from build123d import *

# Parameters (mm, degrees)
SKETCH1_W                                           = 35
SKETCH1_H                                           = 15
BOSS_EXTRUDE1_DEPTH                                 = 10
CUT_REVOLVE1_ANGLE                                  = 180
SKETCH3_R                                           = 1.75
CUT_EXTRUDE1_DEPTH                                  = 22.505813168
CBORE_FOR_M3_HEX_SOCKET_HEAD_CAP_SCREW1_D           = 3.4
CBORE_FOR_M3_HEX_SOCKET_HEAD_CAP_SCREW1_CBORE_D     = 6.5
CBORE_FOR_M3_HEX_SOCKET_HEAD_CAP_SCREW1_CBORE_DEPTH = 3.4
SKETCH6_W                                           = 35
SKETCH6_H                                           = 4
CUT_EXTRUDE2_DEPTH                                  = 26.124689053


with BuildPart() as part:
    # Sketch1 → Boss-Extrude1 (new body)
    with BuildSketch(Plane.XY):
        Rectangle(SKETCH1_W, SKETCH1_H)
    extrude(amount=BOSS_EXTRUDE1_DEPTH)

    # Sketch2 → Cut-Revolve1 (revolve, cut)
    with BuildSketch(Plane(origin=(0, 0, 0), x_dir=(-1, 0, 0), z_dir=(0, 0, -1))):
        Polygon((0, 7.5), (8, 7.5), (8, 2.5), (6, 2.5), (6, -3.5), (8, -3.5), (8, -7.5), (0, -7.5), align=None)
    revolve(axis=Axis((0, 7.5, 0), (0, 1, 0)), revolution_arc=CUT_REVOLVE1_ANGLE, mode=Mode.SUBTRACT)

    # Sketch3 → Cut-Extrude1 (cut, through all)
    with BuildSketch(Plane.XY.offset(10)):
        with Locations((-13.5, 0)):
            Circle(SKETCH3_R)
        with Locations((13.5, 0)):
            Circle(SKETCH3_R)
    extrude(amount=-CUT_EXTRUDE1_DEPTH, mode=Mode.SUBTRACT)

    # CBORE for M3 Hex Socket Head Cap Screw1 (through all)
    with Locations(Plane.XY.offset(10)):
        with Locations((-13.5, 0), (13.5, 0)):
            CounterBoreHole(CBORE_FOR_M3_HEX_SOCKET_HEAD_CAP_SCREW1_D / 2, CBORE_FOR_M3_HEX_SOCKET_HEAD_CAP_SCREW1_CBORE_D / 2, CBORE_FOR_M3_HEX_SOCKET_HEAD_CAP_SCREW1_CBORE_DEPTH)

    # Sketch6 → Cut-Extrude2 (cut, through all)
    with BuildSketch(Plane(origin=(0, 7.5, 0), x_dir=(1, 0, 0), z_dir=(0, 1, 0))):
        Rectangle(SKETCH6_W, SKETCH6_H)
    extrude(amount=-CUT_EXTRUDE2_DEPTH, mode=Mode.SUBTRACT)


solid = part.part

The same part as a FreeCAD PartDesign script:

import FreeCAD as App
import Part
import Sketcher
from FreeCAD import Vector
Q = App.Units.Quantity


def add_polygon(sketch, points):
    """Adds a closed chain of lines whose ends are joined by coincident constraints."""
    first, n = sketch.GeometryCount, len(points)
    for a, b in zip(points, points[1:] + points[:1]):
        sketch.addGeometry(Part.LineSegment(App.Vector(*a, 0), App.Vector(*b, 0)), False)
    for i in range(n):
        sketch.addConstraint(Sketcher.Constraint("Coincident", first + i, 2, first + (i + 1) % n, 1))

doc = App.newDocument("Part")
params = doc.addObject("Spreadsheet::Sheet", "Params")
for row, (alias, value) in enumerate([
    ("sketch1_width", "35 mm"),
    ("sketch1_height", "15 mm"),
    ("pad1_length", "10 mm"),
    ("sketch2_width", "8 mm"),
    ("sketch2_width2", "2 mm"),
    ("sketch2_height", "15 mm"),
    ("sketch2_height2", "4 mm"),
    ("sketch2_height3", "6 mm"),
    ("groove_angle", "180 deg"),
    ("sketch3_diameter", "3.5 mm"),
    ("sketch4_diameter", "3.4 mm"),
    ("hole_diameter", "3.4 mm"),
    ("hole_cbore_diameter", "6.5 mm"),
    ("hole_cbore_depth", "3.4 mm"),
    ("sketch5_width", "35 mm"),
    ("sketch5_height", "4 mm"),
], start=1):
    params.set(f"A{row}", alias)
    params.set(f"B{row}", "=" + value)
    params.setAlias(f"B{row}", alias)

body = doc.addObject("PartDesign::Body", "Body")

sketch1 = body.newObject("Sketcher::SketchObject", "Sketch")
sketch1.AttachmentSupport = (doc.getObject("XY_Plane"), [""])
sketch1.MapMode = "FlatFace"
add_polygon(sketch1, [(-18, 8), (-18, -8), (18, -8), (18, 8)])
sketch1.addConstraint([
    Sketcher.Constraint("Vertical", 0),
    Sketcher.Constraint("Horizontal", 1),
    Sketcher.Constraint("Vertical", 2),
    Sketcher.Constraint("Horizontal", 3),
    Sketcher.Constraint("Symmetric", 0, 2, 2, 2, -1, 1),
    Sketcher.Constraint("DistanceX", 1, 1, 1, 2, Q("35 mm")),
    Sketcher.Constraint("DistanceY", 0, 2, 0, 1, Q("15 mm")),
])
sketch1.setExpression("Constraints[9]", "Params.sketch1_width")
sketch1.setExpression("Constraints[10]", "Params.sketch1_height")
pad1 = body.newObject("PartDesign::Pad", "Pad")
pad1.Profile = sketch1
pad1.setExpression("Length", "Params.pad1_length")

sketch2 = body.newObject("Sketcher::SketchObject", "Sketch001")
sketch2.AttachmentSupport = (doc.getObject("XY_Plane"), [""])
sketch2.MapMode = "FlatFace"
add_polygon(sketch2, [(-8, 7.5), (0, 7.5), (0, -7.5), (-8, -7.5), (-8, -3.5), (-6, -3.5), (-6, 2.5), (-8, 2.5)])
sketch2.addConstraint([
    Sketcher.Constraint("Horizontal", 0),
    Sketcher.Constraint("Vertical", 1),
    Sketcher.Constraint("Horizontal", 2),
    Sketcher.Constraint("Vertical", 3),
    Sketcher.Constraint("Horizontal", 4),
    Sketcher.Constraint("Vertical", 5),
    Sketcher.Constraint("Horizontal", 6),
    Sketcher.Constraint("Vertical", 7),
    Sketcher.Constraint("Symmetric", 0, 2, 1, 2, -1, 1),
    Sketcher.Constraint("Vertical", 3, 2, 6, 2),
    Sketcher.Constraint("DistanceX", 0, 1, 0, 2, Q("8 mm")),
    Sketcher.Constraint("DistanceX", 4, 1, 4, 2, Q("2 mm")),
    Sketcher.Constraint("DistanceY", 1, 2, 1, 1, Q("15 mm")),
    Sketcher.Constraint("DistanceY", 3, 1, 3, 2, Q("4 mm")),
    Sketcher.Constraint("DistanceY", 5, 1, 5, 2, Q("6 mm")),
])
sketch2.setExpression("Constraints[18]", "Params.sketch2_width")
sketch2.setExpression("Constraints[19]", "Params.sketch2_width2")
sketch2.setExpression("Constraints[20]", "Params.sketch2_height")
sketch2.setExpression("Constraints[21]", "Params.sketch2_height2")
sketch2.setExpression("Constraints[22]", "Params.sketch2_height3")
groove = body.newObject("PartDesign::Groove", "Groove")
groove.Profile = sketch2
groove.ReferenceAxis = (sketch2, ["V_Axis"])
groove.setExpression("Angle", "Params.groove_angle")

sketch3 = body.newObject("Sketcher::SketchObject", "Sketch002")
sketch3.AttachmentSupport = (doc.getObject("XY_Plane"), [""])
sketch3.MapMode = "FlatFace"
sketch3.AttachmentOffset = App.Placement(Vector(0, 0, 10), App.Rotation())
sketch3.addGeometry([
    Part.Circle(Vector(-13.5, 0, 0), Vector(0, 0, 1), 1.8),
    Part.Circle(Vector(13.5, 0, 0), Vector(0, 0, 1), 1.8),
], False)
sketch3.addConstraint([
    Sketcher.Constraint("Equal", 0, 1),
    Sketcher.Constraint("Symmetric", 0, 3, 1, 3, -1, 1),
    Sketcher.Constraint("PointOnObject", 0, 3, -1),
    Sketcher.Constraint("Diameter", 0, Q("3.5 mm")),
    Sketcher.Constraint("DistanceX", 0, 3, 1, 3, Q("27 mm")),
])
sketch3.setExpression("Constraints[3]", "Params.sketch3_diameter")
pocket1 = body.newObject("PartDesign::Pocket", "Pocket")
pocket1.Profile = sketch3
pocket1.Type = "ThroughAll"

sketch4 = body.newObject("Sketcher::SketchObject", "Sketch003")
sketch4.AttachmentSupport = (doc.getObject("XY_Plane"), [""])
sketch4.MapMode = "FlatFace"
sketch4.AttachmentOffset = App.Placement(Vector(0, 0, 10), App.Rotation())
sketch4.addGeometry([
    Part.Circle(Vector(-13.5, 0, 0), Vector(0, 0, 1), 1.7),
    Part.Circle(Vector(13.5, 0, 0), Vector(0, 0, 1), 1.7),
], False)
sketch4.addConstraint([
    Sketcher.Constraint("Equal", 0, 1),
    Sketcher.Constraint("Symmetric", 0, 3, 1, 3, -1, 1),
    Sketcher.Constraint("PointOnObject", 0, 3, -1),
    Sketcher.Constraint("Diameter", 0, Q("3.4 mm")),
    Sketcher.Constraint("DistanceX", 0, 3, 1, 3, Q("27 mm")),
])
sketch4.setExpression("Constraints[3]", "Params.sketch4_diameter")
doc.recompute()
hole = body.newObject("PartDesign::Hole", "Hole")
hole.Profile = sketch4
hole.ThreadType = "None"
hole.setExpression("Diameter", "Params.hole_diameter")
hole.DepthType = "ThroughAll"
hole.HoleCutType = "Counterbore"
hole.setExpression("HoleCutDiameter", "Params.hole_cbore_diameter")
hole.setExpression("HoleCutDepth", "Params.hole_cbore_depth")

sketch5 = body.newObject("Sketcher::SketchObject", "Sketch004")
sketch5.AttachmentSupport = (doc.getObject("XZ_Plane"), [""])
sketch5.MapMode = "FlatFace"
sketch5.AttachmentOffset = App.Placement(Vector(0, 0, -7.5), App.Rotation())
add_polygon(sketch5, [(-17.5, -2), (-17.5, 2), (17.5, 2), (17.5, -2)])
sketch5.addConstraint([
    Sketcher.Constraint("Vertical", 0),
    Sketcher.Constraint("Horizontal", 1),
    Sketcher.Constraint("Vertical", 2),
    Sketcher.Constraint("Horizontal", 3),
    Sketcher.Constraint("Symmetric", 0, 2, 2, 2, -1, 1),
    Sketcher.Constraint("DistanceX", 1, 1, 1, 2, Q("35 mm")),
    Sketcher.Constraint("DistanceY", 0, 1, 0, 2, Q("4 mm")),
])
sketch5.setExpression("Constraints[9]", "Params.sketch5_width")
sketch5.setExpression("Constraints[10]", "Params.sketch5_height")
pocket2 = body.newObject("PartDesign::Pocket", "Pocket001")
pocket2.Profile = sketch5
pocket2.Type = "ThroughAll"
pocket2.Reversed = True

doc.recompute()
